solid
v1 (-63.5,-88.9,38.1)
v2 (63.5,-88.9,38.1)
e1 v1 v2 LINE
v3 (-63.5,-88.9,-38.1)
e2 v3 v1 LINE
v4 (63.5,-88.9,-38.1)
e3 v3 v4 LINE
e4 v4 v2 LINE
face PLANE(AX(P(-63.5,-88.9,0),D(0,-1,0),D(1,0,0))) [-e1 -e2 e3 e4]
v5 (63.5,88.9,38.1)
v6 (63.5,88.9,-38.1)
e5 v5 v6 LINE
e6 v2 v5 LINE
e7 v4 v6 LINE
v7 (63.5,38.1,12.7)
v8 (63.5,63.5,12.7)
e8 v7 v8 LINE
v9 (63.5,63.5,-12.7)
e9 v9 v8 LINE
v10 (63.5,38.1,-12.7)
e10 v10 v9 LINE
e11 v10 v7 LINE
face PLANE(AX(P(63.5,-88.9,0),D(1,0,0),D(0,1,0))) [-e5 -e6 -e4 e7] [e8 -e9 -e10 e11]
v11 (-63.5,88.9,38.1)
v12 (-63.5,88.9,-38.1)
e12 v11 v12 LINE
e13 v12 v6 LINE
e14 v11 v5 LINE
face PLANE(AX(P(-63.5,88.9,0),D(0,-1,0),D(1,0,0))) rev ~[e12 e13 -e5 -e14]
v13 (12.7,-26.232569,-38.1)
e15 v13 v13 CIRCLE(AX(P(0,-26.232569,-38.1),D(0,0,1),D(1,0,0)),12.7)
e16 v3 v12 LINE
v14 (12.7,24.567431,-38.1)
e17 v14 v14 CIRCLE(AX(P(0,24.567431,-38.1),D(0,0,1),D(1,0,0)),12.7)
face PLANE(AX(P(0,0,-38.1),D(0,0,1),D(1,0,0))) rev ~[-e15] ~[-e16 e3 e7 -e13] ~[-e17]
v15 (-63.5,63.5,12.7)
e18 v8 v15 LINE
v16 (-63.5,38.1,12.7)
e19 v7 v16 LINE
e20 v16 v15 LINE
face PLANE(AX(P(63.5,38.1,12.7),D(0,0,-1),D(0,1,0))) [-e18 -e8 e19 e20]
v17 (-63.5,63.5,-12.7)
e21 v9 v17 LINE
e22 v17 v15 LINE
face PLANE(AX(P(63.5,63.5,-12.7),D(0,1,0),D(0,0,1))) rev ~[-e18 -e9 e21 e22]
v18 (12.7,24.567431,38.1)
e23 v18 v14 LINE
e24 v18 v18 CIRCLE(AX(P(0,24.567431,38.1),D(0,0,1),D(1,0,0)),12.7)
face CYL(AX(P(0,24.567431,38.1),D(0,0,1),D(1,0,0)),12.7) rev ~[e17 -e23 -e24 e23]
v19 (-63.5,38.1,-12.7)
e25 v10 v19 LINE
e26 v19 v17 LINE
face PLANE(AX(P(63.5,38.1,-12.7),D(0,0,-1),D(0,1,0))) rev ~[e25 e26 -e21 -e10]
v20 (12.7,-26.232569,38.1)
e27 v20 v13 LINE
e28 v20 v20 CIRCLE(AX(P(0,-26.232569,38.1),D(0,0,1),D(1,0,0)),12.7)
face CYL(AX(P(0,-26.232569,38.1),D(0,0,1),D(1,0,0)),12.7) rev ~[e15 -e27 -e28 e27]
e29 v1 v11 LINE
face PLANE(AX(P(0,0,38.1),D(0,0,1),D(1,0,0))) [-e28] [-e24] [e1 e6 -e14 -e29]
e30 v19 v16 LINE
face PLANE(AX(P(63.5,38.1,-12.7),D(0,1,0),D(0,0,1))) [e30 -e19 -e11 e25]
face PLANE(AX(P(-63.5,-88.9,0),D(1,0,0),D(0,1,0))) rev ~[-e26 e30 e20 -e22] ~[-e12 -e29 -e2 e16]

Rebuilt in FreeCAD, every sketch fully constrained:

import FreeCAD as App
import Part
import Sketcher
Q = App.Units.Quantity

doc = App.newDocument("Part")
body = doc.addObject("PartDesign::Body", "Body")

# Sketch on XY plane
sketch1 = doc.addObject("Sketcher::SketchObject", "Sketch")
body.addObject(sketch1)
sketch1.AttachmentSupport = (doc.XY_Plane, [""])
sketch1.MapMode = "FlatFace"
sketch1.addGeometry(Part.LineSegment(App.Vector(-64, 89, 0), App.Vector(-64, -89, 0)), False)
sketch1.addGeometry(Part.LineSegment(App.Vector(-64, -89, 0), App.Vector(64, -89, 0)), False)
sketch1.addGeometry(Part.LineSegment(App.Vector(64, -89, 0), App.Vector(64, 89, 0)), False)
sketch1.addGeometry(Part.LineSegment(App.Vector(64, 89, 0), App.Vector(-64, 89, 0)), False)
sketch1.addConstraint(Sketcher.Constraint("Coincident", 0, 2, 1, 1))
sketch1.addConstraint(Sketcher.Constraint("Coincident", 1, 2, 2, 1))
sketch1.addConstraint(Sketcher.Constraint("Coincident", 2, 2, 3, 1))
sketch1.addConstraint(Sketcher.Constraint("Coincident", 3, 2, 0, 1))
sketch1.addConstraint(Sketcher.Constraint("Vertical", 0))
sketch1.addConstraint(Sketcher.Constraint("Horizontal", 1))
sketch1.addConstraint(Sketcher.Constraint("Vertical", 2))
sketch1.addConstraint(Sketcher.Constraint("Horizontal", 3))
sketch1.addConstraint(Sketcher.Constraint("Symmetric", 0, 2, 2, 2, -1, 1))
sketch1.addConstraint(Sketcher.Constraint("DistanceX", 1, 1, 1, 2, Q("5 in")))
sketch1.addConstraint(Sketcher.Constraint("DistanceY", 0, 2, 0, 1, Q("7 in")))
pad1 = doc.addObject("PartDesign::Pad", "Pad")
body.addObject(pad1)
pad1.Profile = sketch1
pad1.Length = Q("3 in")
pad1.Midplane = True

# Sketch on XY plane
sketch2 = doc.addObject("Sketcher::SketchObject", "Sketch001")
body.addObject(sketch2)
sketch2.AttachmentSupport = (doc.XY_Plane, [""])
sketch2.MapMode = "FlatFace"
sketch2.AttachmentOffset = App.Placement(App.Vector(0, 0, 1.5 * 25.4), App.Rotation())
sketch2.addGeometry(Part.Circle(App.Vector(0, 25, 0), App.Vector(0, 0, 1), 13), False)
sketch2.addGeometry(Part.Circle(App.Vector(0, -26, 0), App.Vector(0, 0, 1), 13), False)
sketch2.addConstraint(Sketcher.Constraint("Equal", 0, 1))
sketch2.addConstraint(Sketcher.Constraint("PointOnObject", 0, 3, -2))
sketch2.addConstraint(Sketcher.Constraint("PointOnObject", 1, 3, -2))
sketch2.addConstraint(Sketcher.Constraint("Diameter", 0, Q("1 in")))
sketch2.addConstraint(Sketcher.Constraint("DistanceY", 1, 3, 0, 3, Q("2 in")))
sketch2.addConstraint(Sketcher.Constraint("DistanceY", -1, 1, 0, 3, Q("24.567431 mm")))
pocket1 = doc.addObject("PartDesign::Pocket", "Pocket")
body.addObject(pocket1)
pocket1.Profile = sketch2
pocket1.Type = "ThroughAll"

# Sketch on YZ plane
sketch3 = doc.addObject("Sketcher::SketchObject", "Sketch002")
body.addObject(sketch3)
sketch3.AttachmentSupport = (doc.YZ_Plane, [""])
sketch3.MapMode = "FlatFace"
sketch3.AttachmentOffset = App.Placement(App.Vector(0, 0, 2.5 * 25.4), App.Rotation())
sketch3.addGeometry(Part.LineSegment(App.Vector(38, 13, 0), App.Vector(38, -13, 0)), False)
sketch3.addGeometry(Part.LineSegment(App.Vector(38, -13, 0), App.Vector(64, -13, 0)), False)
sketch3.addGeometry(Part.LineSegment(App.Vector(64, -13, 0), App.Vector(64, 13, 0)), False)
sketch3.addGeometry(Part.LineSegment(App.Vector(64, 13, 0), App.Vector(38, 13, 0)), False)
sketch3.addConstraint(Sketcher.Constraint("Coincident", 0, 2, 1, 1))
sketch3.addConstraint(Sketcher.Constraint("Coincident", 1, 2, 2, 1))
sketch3.addConstraint(Sketcher.Constraint("Coincident", 2, 2, 3, 1))
sketch3.addConstraint(Sketcher.Constraint("Coincident", 3, 2, 0, 1))
sketch3.addConstraint(Sketcher.Constraint("Vertical", 0))
sketch3.addConstraint(Sketcher.Constraint("Horizontal", 1))
sketch3.addConstraint(Sketcher.Constraint("Vertical", 2))
sketch3.addConstraint(Sketcher.Constraint("Horizontal", 3))
sketch3.addConstraint(Sketcher.Constraint("Equal", 3, 0))
sketch3.addConstraint(Sketcher.Constraint("DistanceX", 1, 1, 1, 2, Q("1 in")))
sketch3.addConstraint(Sketcher.Constraint("DistanceX", -1, 1, 0, 2, Q("1.5 in")))
sketch3.addConstraint(Sketcher.Constraint("DistanceY", 0, 2, -1, 1, Q("0.5 in")))
pocket2 = doc.addObject("PartDesign::Pocket", "Pocket001")
body.addObject(pocket2)
pocket2.Profile = sketch3
pocket2.Type = "ThroughAll"

doc.recompute()
